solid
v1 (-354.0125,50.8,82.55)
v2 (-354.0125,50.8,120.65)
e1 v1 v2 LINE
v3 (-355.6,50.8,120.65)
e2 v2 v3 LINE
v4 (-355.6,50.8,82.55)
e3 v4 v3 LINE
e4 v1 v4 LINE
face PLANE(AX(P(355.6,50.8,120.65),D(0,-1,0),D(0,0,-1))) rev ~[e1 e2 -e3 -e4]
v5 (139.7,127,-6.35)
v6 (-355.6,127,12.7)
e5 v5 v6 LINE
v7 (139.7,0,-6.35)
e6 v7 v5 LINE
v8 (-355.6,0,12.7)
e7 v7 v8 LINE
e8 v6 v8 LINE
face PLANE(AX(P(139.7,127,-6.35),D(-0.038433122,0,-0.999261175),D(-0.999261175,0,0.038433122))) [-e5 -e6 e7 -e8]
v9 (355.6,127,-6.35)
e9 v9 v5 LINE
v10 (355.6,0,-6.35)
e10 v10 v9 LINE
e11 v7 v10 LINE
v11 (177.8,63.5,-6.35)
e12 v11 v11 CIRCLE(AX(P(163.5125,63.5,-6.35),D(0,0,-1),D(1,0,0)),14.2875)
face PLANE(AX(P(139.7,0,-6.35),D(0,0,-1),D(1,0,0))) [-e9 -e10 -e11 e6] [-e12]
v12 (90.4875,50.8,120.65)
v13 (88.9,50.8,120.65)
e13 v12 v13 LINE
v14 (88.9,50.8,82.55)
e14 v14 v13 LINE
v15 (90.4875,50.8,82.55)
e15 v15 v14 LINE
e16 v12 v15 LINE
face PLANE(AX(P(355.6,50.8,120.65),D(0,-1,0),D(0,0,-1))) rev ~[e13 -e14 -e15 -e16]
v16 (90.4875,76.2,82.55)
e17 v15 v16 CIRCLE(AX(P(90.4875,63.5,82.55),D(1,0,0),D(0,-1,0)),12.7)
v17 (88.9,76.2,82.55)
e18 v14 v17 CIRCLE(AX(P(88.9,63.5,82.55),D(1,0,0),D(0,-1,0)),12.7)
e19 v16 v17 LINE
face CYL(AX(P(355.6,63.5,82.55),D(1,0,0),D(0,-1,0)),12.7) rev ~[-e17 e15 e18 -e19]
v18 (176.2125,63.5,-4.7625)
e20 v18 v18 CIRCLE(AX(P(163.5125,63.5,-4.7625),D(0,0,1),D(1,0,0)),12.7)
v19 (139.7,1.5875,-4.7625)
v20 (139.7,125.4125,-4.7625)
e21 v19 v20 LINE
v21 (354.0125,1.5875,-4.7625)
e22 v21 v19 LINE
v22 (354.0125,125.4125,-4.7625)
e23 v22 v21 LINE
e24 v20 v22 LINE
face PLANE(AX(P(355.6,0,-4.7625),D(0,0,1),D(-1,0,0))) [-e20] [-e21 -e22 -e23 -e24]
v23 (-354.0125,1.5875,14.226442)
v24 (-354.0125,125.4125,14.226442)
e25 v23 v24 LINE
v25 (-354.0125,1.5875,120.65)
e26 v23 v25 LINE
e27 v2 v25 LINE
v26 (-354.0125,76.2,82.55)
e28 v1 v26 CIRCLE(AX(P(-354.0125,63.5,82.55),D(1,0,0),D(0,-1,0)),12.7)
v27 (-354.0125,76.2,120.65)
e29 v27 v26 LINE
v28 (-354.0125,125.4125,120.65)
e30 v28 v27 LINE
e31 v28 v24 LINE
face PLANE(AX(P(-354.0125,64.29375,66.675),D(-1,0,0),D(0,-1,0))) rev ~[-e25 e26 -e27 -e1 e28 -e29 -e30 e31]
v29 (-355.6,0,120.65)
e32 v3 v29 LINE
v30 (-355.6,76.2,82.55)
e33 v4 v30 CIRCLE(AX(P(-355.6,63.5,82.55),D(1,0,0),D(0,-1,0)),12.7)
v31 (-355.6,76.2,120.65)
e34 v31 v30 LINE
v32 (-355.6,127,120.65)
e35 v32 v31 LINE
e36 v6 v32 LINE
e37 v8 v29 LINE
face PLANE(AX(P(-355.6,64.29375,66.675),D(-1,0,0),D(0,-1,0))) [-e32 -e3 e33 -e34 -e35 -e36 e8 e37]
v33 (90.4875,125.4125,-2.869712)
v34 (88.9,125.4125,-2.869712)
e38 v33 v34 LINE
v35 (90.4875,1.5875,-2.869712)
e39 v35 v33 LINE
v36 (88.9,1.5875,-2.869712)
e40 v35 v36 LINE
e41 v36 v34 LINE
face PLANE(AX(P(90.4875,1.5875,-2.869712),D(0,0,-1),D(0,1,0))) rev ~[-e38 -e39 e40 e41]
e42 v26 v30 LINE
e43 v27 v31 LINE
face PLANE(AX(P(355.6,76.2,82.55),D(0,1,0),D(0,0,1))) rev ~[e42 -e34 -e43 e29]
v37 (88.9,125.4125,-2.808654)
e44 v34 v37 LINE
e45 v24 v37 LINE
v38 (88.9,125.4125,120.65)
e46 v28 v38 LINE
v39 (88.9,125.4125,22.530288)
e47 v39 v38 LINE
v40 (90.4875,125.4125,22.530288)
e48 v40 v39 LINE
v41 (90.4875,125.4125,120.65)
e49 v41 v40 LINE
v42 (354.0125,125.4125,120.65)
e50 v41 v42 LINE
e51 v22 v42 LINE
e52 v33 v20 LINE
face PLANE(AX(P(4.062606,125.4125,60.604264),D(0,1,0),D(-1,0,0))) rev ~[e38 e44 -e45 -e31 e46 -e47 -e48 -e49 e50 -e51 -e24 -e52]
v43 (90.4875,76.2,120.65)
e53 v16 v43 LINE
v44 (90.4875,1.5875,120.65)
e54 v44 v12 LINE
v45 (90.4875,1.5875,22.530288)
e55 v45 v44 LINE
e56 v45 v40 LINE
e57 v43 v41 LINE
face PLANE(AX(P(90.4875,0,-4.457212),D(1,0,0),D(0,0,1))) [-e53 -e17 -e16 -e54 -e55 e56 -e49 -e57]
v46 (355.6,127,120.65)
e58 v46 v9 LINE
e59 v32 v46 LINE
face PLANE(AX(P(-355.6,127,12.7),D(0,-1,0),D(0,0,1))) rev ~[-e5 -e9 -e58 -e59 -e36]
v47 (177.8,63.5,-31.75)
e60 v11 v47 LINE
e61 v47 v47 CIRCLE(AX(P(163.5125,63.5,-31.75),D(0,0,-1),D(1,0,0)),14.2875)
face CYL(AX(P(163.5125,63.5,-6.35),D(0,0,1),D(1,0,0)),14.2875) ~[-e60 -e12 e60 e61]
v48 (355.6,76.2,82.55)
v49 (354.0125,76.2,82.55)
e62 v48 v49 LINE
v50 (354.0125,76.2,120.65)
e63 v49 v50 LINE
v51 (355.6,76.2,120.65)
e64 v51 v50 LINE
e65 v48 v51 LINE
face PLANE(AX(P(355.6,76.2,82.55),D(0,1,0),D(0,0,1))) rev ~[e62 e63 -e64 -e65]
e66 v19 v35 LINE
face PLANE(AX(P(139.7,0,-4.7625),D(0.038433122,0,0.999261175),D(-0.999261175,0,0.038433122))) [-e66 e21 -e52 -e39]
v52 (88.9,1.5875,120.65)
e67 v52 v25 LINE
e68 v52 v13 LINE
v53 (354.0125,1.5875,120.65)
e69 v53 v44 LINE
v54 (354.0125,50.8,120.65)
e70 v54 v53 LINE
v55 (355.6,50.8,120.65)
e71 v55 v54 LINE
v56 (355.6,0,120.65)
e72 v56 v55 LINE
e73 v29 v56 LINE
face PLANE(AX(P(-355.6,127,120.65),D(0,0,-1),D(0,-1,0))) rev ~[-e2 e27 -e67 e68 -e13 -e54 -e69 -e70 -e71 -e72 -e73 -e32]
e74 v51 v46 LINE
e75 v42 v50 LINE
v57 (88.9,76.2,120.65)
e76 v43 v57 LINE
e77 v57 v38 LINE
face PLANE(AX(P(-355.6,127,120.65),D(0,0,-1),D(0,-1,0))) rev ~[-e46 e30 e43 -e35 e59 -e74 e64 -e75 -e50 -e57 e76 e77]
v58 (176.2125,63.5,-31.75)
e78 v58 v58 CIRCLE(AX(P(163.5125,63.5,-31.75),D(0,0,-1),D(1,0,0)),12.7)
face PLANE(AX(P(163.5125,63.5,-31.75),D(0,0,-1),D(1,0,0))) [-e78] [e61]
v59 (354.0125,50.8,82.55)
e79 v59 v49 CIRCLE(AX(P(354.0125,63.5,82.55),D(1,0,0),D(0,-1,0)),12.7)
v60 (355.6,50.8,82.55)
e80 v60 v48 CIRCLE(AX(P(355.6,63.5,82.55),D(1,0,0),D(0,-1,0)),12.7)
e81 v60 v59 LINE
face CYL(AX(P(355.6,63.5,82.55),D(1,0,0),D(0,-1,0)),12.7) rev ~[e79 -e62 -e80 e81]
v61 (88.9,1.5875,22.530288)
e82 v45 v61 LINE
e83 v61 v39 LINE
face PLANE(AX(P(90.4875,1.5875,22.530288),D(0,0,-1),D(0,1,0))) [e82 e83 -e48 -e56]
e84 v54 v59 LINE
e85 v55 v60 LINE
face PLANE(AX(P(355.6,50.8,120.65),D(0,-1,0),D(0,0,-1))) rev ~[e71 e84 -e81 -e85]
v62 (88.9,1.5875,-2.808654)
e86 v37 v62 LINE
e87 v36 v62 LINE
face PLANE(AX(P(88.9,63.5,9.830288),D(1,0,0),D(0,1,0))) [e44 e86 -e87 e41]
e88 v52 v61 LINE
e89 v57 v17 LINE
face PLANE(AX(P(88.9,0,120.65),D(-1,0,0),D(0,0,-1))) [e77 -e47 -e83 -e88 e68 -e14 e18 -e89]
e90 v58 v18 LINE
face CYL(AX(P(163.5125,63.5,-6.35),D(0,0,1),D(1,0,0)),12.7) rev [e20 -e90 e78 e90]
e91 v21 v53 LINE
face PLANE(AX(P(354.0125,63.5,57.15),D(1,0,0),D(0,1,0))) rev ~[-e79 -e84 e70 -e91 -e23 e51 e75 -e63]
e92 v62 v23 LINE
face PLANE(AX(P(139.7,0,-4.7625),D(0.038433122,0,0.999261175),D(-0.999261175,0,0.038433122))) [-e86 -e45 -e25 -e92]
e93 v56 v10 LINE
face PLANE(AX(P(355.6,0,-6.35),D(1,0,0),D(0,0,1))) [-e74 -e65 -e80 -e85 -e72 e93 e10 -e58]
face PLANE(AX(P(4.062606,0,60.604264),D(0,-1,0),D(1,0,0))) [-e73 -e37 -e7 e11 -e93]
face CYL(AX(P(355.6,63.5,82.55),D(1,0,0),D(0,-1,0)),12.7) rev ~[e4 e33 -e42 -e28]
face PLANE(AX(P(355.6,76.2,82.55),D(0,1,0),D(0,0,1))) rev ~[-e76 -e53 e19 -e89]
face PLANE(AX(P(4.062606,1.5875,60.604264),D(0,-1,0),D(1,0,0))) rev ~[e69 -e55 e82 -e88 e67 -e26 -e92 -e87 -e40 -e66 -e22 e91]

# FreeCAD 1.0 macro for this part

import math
import FreeCAD as App
import Part
import Sketcher

V = App.Vector
Q = App.Units.Quantity


def add_polygon(sketch, points):
    """Adds a closed chain of lines whose ends are joined by coincident constraints."""
    first, n = sketch.GeometryCount, len(points)
    for a, b in zip(points, points[1:] + points[:1]):
        sketch.addGeometry(Part.LineSegment(App.Vector(*a, 0), App.Vector(*b, 0)), False)
    for i in range(n):
        sketch.addConstraint(Sketcher.Constraint("Coincident", first + i, 2, first + (i + 1) % n, 1))

doc = App.newDocument("Part")
body = doc.addObject("PartDesign::Body", "Body")

sketch1 = body.newObject("Sketcher::SketchObject", "Sketch")
sketch1.AttachmentSupport = (doc.getObject("XZ_Plane"), [""])
sketch1.MapMode = "FlatFace"
add_polygon(sketch1, [(355.6, 120.65), (-355.6, 120.65), (-355.6, 12.7), (139.7, -6.35), (355.6, -6.35)])
sketch1.addConstraint([
    Sketcher.Constraint("Horizontal", 0),
    Sketcher.Constraint("Vertical", 1),
    Sketcher.Constraint("Horizontal", 3),
    Sketcher.Constraint("Vertical", 4),
    Sketcher.Constraint("DistanceX", 0, 2, 0, 1, Q("28 in")),
    Sketcher.Constraint("DistanceY", 4, 1, 4, 2, Q("5 in")),
    Sketcher.Constraint("DistanceX", 3, 1, 3, 2, Q("8.5 in")),
    Sketcher.Constraint("DistanceX", 0, 2, -1, 1, Q("14 in")),
    Sketcher.Constraint("DistanceY", 1, 2, 1, 1, Q("4.25 in")),
    Sketcher.Constraint("DistanceY", -1, 1, 1, 2, Q("0.5 in")),
])
pad1 = body.newObject("PartDesign::Pad", "Pad")
pad1.Profile = sketch1
pad1.Length = Q("0.0625 in")
pad1.Reversed = True

sketch2 = body.newObject("Sketcher::SketchObject", "Sketch001")
sketch2.AttachmentSupport = (doc.getObject("YZ_Plane"), [""])
sketch2.MapMode = "FlatFace"
sketch2.AttachmentOffset = App.Placement(V(0, 0, -14 * 25.4), App.Rotation())
add_polygon(sketch2, [(127, 120.65), (127, 12.7), (1.5875, 12.7), (1.5875, 120.65)])
sketch2.addConstraint([
    Sketcher.Constraint("Vertical", 0),
    Sketcher.Constraint("Horizontal", 1),
    Sketcher.Constraint("Vertical", 2),
    Sketcher.Constraint("Horizontal", 3),
    Sketcher.Constraint("DistanceX", -1, 1, 0, 2, Q("5 in")),
    Sketcher.Constraint("DistanceY", 0, 2, 0, 1, Q("4.25 in")),
    Sketcher.Constraint("DistanceY", -1, 1, 0, 2, Q("0.5 in")),
    Sketcher.Constraint("DistanceX", 1, 2, 1, 1, Q("4.9375 in")),
])
pad2 = body.newObject("PartDesign::Pad", "Pad001")
pad2.Profile = sketch2
pad2.Length = Q("0.0625 in")

sketch3 = body.newObject("Sketcher::SketchObject", "Sketch002")
sketch3.AttachmentSupport = (doc.getObject("YZ_Plane"), [""])
sketch3.MapMode = "FlatFace"
sketch3.AttachmentOffset = App.Placement(V(0, 0, 14 * 25.4), App.Rotation())
add_polygon(sketch3, [(0, 120.65), (0, -6.35), (127, -6.35), (127, 120.65)])
sketch3.addConstraint([
    Sketcher.Constraint("Vertical", 0),
    Sketcher.Constraint("Horizontal", 1),
    Sketcher.Constraint("Vertical", 2),
    Sketcher.Constraint("Horizontal", 3),
    Sketcher.Constraint("PointOnObject", 0, 2, -2),
    Sketcher.Constraint("Equal", 3, 0),
    Sketcher.Constraint("DistanceX", 1, 1, 1, 2, Q("5 in")),
    Sketcher.Constraint("DistanceY", 0, 2, -1, 1, Q("0.25 in")),
])
pad3 = body.newObject("PartDesign::Pad", "Pad002")
pad3.Profile = sketch3
pad3.Length = Q("0.0625 in")
pad3.Reversed = True

sketch4 = body.newObject("Sketcher::SketchObject", "Sketch003")
sketch4.AttachmentSupport = (doc.getObject("XZ_Plane"), [""])
sketch4.MapMode = "FlatFace"
sketch4.AttachmentOffset = App.Placement(V(0, 0, -5 * 25.4), App.Rotation())
add_polygon(sketch4, [(-355.6, 12.7), (-355.6, 120.65), (355.6, 120.65), (355.6, -6.35), (139.7, -6.35)])
sketch4.addConstraint([
    Sketcher.Constraint("Vertical", 0),
    Sketcher.Constraint("Horizontal", 1),
    Sketcher.Constraint("Vertical", 2),
    Sketcher.Constraint("Horizontal", 3),
    Sketcher.Constraint("DistanceX", 1, 1, 1, 2, Q("28 in")),
    Sketcher.Constraint("DistanceY", 2, 2, 2, 1, Q("5 in")),
    Sketcher.Constraint("DistanceX", 3, 2, 3, 1, Q("8.5 in")),
    Sketcher.Constraint("DistanceX", 0, 2, -1, 1, Q("14 in")),
    Sketcher.Constraint("DistanceY", 0, 1, 0, 2, Q("4.25 in")),
    Sketcher.Constraint("DistanceY", -1, 1, 4, 2, Q("0.5 in")),
])
pad4 = body.newObject("PartDesign::Pad", "Pad003")
pad4.Profile = sketch4
pad4.Length = Q("0.0625 in")

sketch5 = body.newObject("Sketcher::SketchObject", "Sketch004")
sketch5.AttachmentSupport = (doc.getObject("XZ_Plane"), [""])
sketch5.MapMode = "FlatFace"
add_polygon(sketch5, [(-355.6, 14.2875), (-355.6, 12.7), (139.7, -6.35), (355.6, -6.35), (355.6, -4.7625), (139.7, -4.7625)])
sketch5.addConstraint([
    Sketcher.Constraint("Vertical", 0),
    Sketcher.Constraint("Horizontal", 2),
    Sketcher.Constraint("Vertical", 3),
    Sketcher.Constraint("Horizontal", 4),
    Sketcher.Constraint("Parallel", 1, 5),
    Sketcher.Constraint("Vertical", 1, 2, 4, 2),
    Sketcher.Constraint("DistanceX", 2, 1, 2, 2, Q("8.5 in")),
    Sketcher.Constraint("DistanceX", 0, 2, -1, 1, Q("14 in")),
    Sketcher.Constraint("DistanceX", -1, 1, 2, 2, Q("14 in")),
    Sketcher.Constraint("DistanceY", -1, 1, 0, 2, Q("0.5 in")),
    Sketcher.Constraint("DistanceY", 0, 2, 0, 1, Q("0.0625 in")),
    Sketcher.Constraint("DistanceY", 1, 2, -1, 1, Q("0.25 in")),
])
pad5 = body.newObject("PartDesign::Pad", "Pad004")
pad5.Profile = sketch5
pad5.Length = Q("5 in")
pad5.Reversed = True

sketch6 = body.newObject("Sketcher::SketchObject", "Sketch005")
sketch6.AttachmentSupport = (doc.getObject("XZ_Plane"), [""])
sketch6.MapMode = "FlatFace"
add_polygon(sketch6, [(90.4875, 120.65), (88.9, 120.65), (88.9, -4.396154), (90.4875, -4.457212)])
sketch6.addConstraint([
    Sketcher.Constraint("Horizontal", 0),
    Sketcher.Constraint("Vertical", 1),
    Sketcher.Constraint("Vertical", 3),
    Sketcher.Constraint("DistanceX", -1, 1, 0, 2, Q("3.5 in")),
    Sketcher.Constraint("DistanceX", 0, 2, 0, 1, Q("0.0625 in")),
    Sketcher.Constraint("DistanceY", -1, 1, 0, 2, Q("4.75 in")),
    Sketcher.Constraint("DistanceY", 1, 2, 1, 1, Q("125.046154 mm")),
    Sketcher.Constraint("DistanceY", 3, 1, 3, 2, Q("125.107212 mm")),
])
pad6 = body.newObject("PartDesign::Pad", "Pad005")
pad6.Profile = sketch6
pad6.Length = Q("5 in")
pad6.Reversed = True

sketch7 = body.newObject("Sketcher::SketchObject", "Sketch006")
sketch7.AttachmentSupport = (doc.getObject("YZ_Plane"), [""])
sketch7.MapMode = "FlatFace"
sketch7.AttachmentOffset = App.Placement(V(0, 0, 14 * 25.4), App.Rotation())
sketch7.addGeometry([
    Part.LineSegment(V(50.8, 120.65, 0), V(50.8, 82.55, 0)),
    Part.ArcOfCircle(Part.Circle(V(63.5, 82.55, 0), V(0, 0, 1), 12.7), math.radians(180), math.radians(360)),
    Part.LineSegment(V(76.2, 82.55, 0), V(76.2, 120.65, 0)),
    Part.LineSegment(V(76.2, 120.65, 0), V(50.8, 120.65, 0)),
], False)
sketch7.addConstraint([
    Sketcher.Constraint("Tangent", 0, 2, 1, 1),
    Sketcher.Constraint("Tangent", 1, 2, 2, 1),
    Sketcher.Constraint("Coincident", 2, 2, 3, 1),
    Sketcher.Constraint("Coincident", 3, 2, 0, 1),
    Sketcher.Constraint("Vertical", 0),
    Sketcher.Constraint("Vertical", 2),
    Sketcher.Constraint("Horizontal", 3),
    Sketcher.Constraint("Radius", 1, Q("0.5 in")),
    Sketcher.Constraint("DistanceY", 0, 2, 0, 1, Q("1.5 in")),
    Sketcher.Constraint("DistanceX", -1, 1, 0, 2, Q("2 in")),
    Sketcher.Constraint("DistanceY", -1, 1, 1, 3, Q("3.25 in")),
])
pocket1 = body.newObject("PartDesign::Pocket", "Pocket")
pocket1.Profile = sketch7
pocket1.Type = "ThroughAll"

sketch8 = body.newObject("Sketcher::SketchObject", "Sketch007")
sketch8.AttachmentSupport = (doc.getObject("XY_Plane"), [""])
sketch8.MapMode = "FlatFace"
sketch8.AttachmentOffset = App.Placement(V(0, 0, -0.1875 * 25.4), App.Rotation())
sketch8.addGeometry(Part.Circle(V(163.5125, 63.5, 0), V(0, 0, 1), 12.7), False)
sketch8.addConstraint([
    Sketcher.Constraint("Diameter", 0, Q("1 in")),
    Sketcher.Constraint("DistanceY", -1, 1, 0, 3, Q("2.5 in")),
    Sketcher.Constraint("DistanceX", -1, 1, 0, 3, Q("6.4375 in")),
])
pocket2 = body.newObject("PartDesign::Pocket", "Pocket001")
pocket2.Profile = sketch8
pocket2.Length = Q("1 in")

sketch9 = body.newObject("Sketcher::SketchObject", "Sketch008")
sketch9.AttachmentSupport = (doc.getObject("XY_Plane"), [""])
sketch9.MapMode = "FlatFace"
sketch9.AttachmentOffset = App.Placement(V(0, 0, -0.25 * 25.4), App.Rotation())
sketch9.addGeometry([
    Part.Circle(V(163.5125, 63.5, 0), V(0, 0, 1), 14.2875),
    Part.Circle(V(163.5125, 63.5, 0), V(0, 0, 1), 12.7),
], False)
sketch9.addConstraint([
    Sketcher.Constraint("Coincident", 1, 3, 0, 3),
    Sketcher.Constraint("Diameter", 1, Q("1 in")),
    Sketcher.Constraint("Diameter", 0, Q("1.125 in")),
    Sketcher.Constraint("DistanceY", -1, 1, 0, 3, Q("2.5 in")),
    Sketcher.Constraint("DistanceX", -1, 1, 0, 3, Q("6.4375 in")),
])
pad7 = body.newObject("PartDesign::Pad", "Pad006")
pad7.Profile = sketch9
pad7.Length = Q("1 in")
pad7.Reversed = True

sketch10 = body.newObject("Sketcher::SketchObject", "Sketch009")
sketch10.AttachmentSupport = (doc.getObject("YZ_Plane"), [""])
sketch10.MapMode = "FlatFace"
sketch10.AttachmentOffset = App.Placement(V(0, 0, 3.5625 * 25.4), App.Rotation())
add_polygon(sketch10, [(1.5875, 22.530288), (1.5875, -2.869712), (125.4125, -2.869712), (125.4125, 22.530288)])
sketch10.addConstraint([
    Sketcher.Constraint("Vertical", 0),
    Sketcher.Constraint("Horizontal", 1),
    Sketcher.Constraint("Vertical", 2),
    Sketcher.Constraint("Horizontal", 3),
    Sketcher.Constraint("DistanceY", 0, 2, 0, 1, Q("1 in")),
    Sketcher.Constraint("DistanceX", 1, 1, 1, 2, Q("4.875 in")),
    Sketcher.Constraint("DistanceX", -1, 1, 0, 2, Q("0.0625 in")),
    Sketcher.Constraint("DistanceY", 0, 2, -1, 1, Q("2.869712 mm")),
])
pocket3 = body.newObject("PartDesign::Pocket", "Pocket002")
pocket3.Profile = sketch10
pocket3.Length = Q("0.0625 in")

doc.recompute()
